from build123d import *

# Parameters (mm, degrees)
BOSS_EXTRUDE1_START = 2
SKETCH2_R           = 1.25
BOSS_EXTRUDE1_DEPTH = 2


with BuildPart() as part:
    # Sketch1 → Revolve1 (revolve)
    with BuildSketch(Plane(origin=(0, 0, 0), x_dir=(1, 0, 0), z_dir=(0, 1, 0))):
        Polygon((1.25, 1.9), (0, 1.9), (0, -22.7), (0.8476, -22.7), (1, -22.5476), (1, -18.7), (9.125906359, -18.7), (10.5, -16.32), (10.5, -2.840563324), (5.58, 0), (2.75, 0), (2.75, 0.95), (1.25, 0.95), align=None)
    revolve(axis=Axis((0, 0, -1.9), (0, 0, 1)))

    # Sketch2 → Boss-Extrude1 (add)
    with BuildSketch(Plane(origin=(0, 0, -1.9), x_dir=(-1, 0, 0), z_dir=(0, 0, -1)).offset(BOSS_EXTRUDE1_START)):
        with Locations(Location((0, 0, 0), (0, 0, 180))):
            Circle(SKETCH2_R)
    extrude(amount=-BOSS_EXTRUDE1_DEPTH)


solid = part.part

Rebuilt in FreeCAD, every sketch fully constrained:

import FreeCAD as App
import Part
import Sketcher

V = App.Vector
Q = App.Units.Quantity

doc = App.newDocument("Part")
body = doc.addObject("PartDesign::Body", "Body")

# Sketch on XZ plane
sketch1 = body.newObject("Sketcher::SketchObject", "Sketch")
sketch1.AttachmentSupport = (doc.getObject("XZ_Plane"), [""])
sketch1.MapMode = "FlatFace"
sketch1.addGeometry([
    Part.LineSegment(V(1.25, -1.9, 0), V(0, -1.9, 0)),  # 0
    Part.LineSegment(V(0, -1.9, 0), V(0, 22.7, 0)),  # 1
    Part.LineSegment(V(0, 22.7, 0), V(0.85, 22.7, 0)),  # 2
    Part.LineSegment(V(0.85, 22.7, 0), V(1, 22.55, 0)),  # 3
    Part.LineSegment(V(1, 22.55, 0), V(1, 18.7, 0)),  # 4
    Part.LineSegment(V(1, 18.7, 0), V(9.13, 18.7, 0)),  # 5
    Part.LineSegment(V(9.13, 18.7, 0), V(10.5, 16.32, 0)),  # 6
    Part.LineSegment(V(10.5, 16.32, 0), V(10.5, 2.84, 0)),  # 7
    Part.LineSegment(V(10.5, 2.84, 0), V(5.58, 0, 0)),  # 8
    Part.LineSegment(V(5.58, 0, 0), V(2.75, 0, 0)),  # 9
    Part.LineSegment(V(2.75, 0, 0), V(2.75, -0.95, 0)),  # 10
    Part.LineSegment(V(2.75, -0.95, 0), V(1.25, -0.95, 0)),  # 11
    Part.LineSegment(V(1.25, -0.95, 0), V(1.25, -1.9, 0)),  # 12
], False)
sketch1.addConstraint([
    Sketcher.Constraint("Coincident", 0, 2, 1, 1),
    Sketcher.Constraint("Coincident", 1, 2, 2, 1),
    Sketcher.Constraint("Coincident", 2, 2, 3, 1),
    Sketcher.Constraint("Coincident", 3, 2, 4, 1),
    Sketcher.Constraint("Coincident", 4, 2, 5, 1),
    Sketcher.Constraint("Coincident", 5, 2, 6, 1),
    Sketcher.Constraint("Coincident", 6, 2, 7, 1),
    Sketcher.Constraint("Coincident", 7, 2, 8, 1),
    Sketcher.Constraint("Coincident", 8, 2, 9, 1),
    Sketcher.Constraint("Coincident", 9, 2, 10, 1),
    Sketcher.Constraint("Coincident", 10, 2, 11, 1),
    Sketcher.Constraint("Coincident", 11, 2, 12, 1),
    Sketcher.Constraint("Coincident", 12, 2, 0, 1),
    Sketcher.Constraint("Horizontal", 0),
    Sketcher.Constraint("Vertical", 1),
    Sketcher.Constraint("Horizontal", 2),
    Sketcher.Constraint("Vertical", 4),
    Sketcher.Constraint("Horizontal", 5),
    Sketcher.Constraint("Vertical", 7),
    Sketcher.Constraint("Horizontal", 9),
    Sketcher.Constraint("Vertical", 10),
    Sketcher.Constraint("Horizontal", 11),
    Sketcher.Constraint("Vertical", 12),
    Sketcher.Constraint("PointOnObject", 0, 2, -2),
    Sketcher.Constraint("PointOnObject", 8, 2, -1),
    Sketcher.Constraint("Perpendicular", 6, 8),
    Sketcher.Constraint("Equal", 10, 12),
    Sketcher.Constraint("Angle", 3, Q("-45 deg")),
    Sketcher.Constraint("Angle", 6, Q("-60 deg")),
    Sketcher.Constraint("DistanceX", 11, 2, 11, 1, Q("1.5 mm")),
    Sketcher.Constraint("DistanceY", 1, 1, 1, 2, Q("24.6 mm")),
    Sketcher.Constraint("DistanceX", -1, 1, 3, 2, Q("1 mm")),
    Sketcher.Constraint("DistanceY", 4, 2, 2, 2, Q("4 mm")),
    Sketcher.Constraint("DistanceX", 0, 2, 0, 1, Q("1.25 mm")),
    Sketcher.Constraint("DistanceX", 9, 2, 9, 1, Q("2.83 mm")),
    Sketcher.Constraint("DistanceY", 10, 2, 10, 1, Q("0.95 mm")),
    Sketcher.Constraint("DistanceX", -1, 1, 6, 2, Q("10.5 mm")),
    Sketcher.Constraint("DistanceY", -1, 1, 6, 2, Q("16.32 mm")),
    Sketcher.Constraint("DistanceX", 2, 1, 2, 2, Q("0.8476 mm")),
])
revolution = body.newObject("PartDesign::Revolution", "Revolution")
revolution.Profile = sketch1
revolution.ReferenceAxis = (sketch1, ["V_Axis"])
revolution.Angle = 360

# Sketch on XY plane
sketch2 = body.newObject("Sketcher::SketchObject", "Sketch001")
sketch2.AttachmentSupport = (doc.getObject("XY_Plane"), [""])
sketch2.MapMode = "FlatFace"
sketch2.AttachmentOffset = App.Placement(V(0, 0, -3.9), App.Rotation())
sketch2.addGeometry(Part.Circle(V(0, 0, 0), V(0, 0, 1), 1.2), False)
sketch2.addConstraint([
    Sketcher.Constraint("Coincident", 0, 3, -1, 1),
    Sketcher.Constraint("Diameter", 0, Q("2.5 mm")),
])
pad1 = body.newObject("PartDesign::Pad", "Pad")
pad1.Profile = sketch2
pad1.Length = 2

doc.recompute()
